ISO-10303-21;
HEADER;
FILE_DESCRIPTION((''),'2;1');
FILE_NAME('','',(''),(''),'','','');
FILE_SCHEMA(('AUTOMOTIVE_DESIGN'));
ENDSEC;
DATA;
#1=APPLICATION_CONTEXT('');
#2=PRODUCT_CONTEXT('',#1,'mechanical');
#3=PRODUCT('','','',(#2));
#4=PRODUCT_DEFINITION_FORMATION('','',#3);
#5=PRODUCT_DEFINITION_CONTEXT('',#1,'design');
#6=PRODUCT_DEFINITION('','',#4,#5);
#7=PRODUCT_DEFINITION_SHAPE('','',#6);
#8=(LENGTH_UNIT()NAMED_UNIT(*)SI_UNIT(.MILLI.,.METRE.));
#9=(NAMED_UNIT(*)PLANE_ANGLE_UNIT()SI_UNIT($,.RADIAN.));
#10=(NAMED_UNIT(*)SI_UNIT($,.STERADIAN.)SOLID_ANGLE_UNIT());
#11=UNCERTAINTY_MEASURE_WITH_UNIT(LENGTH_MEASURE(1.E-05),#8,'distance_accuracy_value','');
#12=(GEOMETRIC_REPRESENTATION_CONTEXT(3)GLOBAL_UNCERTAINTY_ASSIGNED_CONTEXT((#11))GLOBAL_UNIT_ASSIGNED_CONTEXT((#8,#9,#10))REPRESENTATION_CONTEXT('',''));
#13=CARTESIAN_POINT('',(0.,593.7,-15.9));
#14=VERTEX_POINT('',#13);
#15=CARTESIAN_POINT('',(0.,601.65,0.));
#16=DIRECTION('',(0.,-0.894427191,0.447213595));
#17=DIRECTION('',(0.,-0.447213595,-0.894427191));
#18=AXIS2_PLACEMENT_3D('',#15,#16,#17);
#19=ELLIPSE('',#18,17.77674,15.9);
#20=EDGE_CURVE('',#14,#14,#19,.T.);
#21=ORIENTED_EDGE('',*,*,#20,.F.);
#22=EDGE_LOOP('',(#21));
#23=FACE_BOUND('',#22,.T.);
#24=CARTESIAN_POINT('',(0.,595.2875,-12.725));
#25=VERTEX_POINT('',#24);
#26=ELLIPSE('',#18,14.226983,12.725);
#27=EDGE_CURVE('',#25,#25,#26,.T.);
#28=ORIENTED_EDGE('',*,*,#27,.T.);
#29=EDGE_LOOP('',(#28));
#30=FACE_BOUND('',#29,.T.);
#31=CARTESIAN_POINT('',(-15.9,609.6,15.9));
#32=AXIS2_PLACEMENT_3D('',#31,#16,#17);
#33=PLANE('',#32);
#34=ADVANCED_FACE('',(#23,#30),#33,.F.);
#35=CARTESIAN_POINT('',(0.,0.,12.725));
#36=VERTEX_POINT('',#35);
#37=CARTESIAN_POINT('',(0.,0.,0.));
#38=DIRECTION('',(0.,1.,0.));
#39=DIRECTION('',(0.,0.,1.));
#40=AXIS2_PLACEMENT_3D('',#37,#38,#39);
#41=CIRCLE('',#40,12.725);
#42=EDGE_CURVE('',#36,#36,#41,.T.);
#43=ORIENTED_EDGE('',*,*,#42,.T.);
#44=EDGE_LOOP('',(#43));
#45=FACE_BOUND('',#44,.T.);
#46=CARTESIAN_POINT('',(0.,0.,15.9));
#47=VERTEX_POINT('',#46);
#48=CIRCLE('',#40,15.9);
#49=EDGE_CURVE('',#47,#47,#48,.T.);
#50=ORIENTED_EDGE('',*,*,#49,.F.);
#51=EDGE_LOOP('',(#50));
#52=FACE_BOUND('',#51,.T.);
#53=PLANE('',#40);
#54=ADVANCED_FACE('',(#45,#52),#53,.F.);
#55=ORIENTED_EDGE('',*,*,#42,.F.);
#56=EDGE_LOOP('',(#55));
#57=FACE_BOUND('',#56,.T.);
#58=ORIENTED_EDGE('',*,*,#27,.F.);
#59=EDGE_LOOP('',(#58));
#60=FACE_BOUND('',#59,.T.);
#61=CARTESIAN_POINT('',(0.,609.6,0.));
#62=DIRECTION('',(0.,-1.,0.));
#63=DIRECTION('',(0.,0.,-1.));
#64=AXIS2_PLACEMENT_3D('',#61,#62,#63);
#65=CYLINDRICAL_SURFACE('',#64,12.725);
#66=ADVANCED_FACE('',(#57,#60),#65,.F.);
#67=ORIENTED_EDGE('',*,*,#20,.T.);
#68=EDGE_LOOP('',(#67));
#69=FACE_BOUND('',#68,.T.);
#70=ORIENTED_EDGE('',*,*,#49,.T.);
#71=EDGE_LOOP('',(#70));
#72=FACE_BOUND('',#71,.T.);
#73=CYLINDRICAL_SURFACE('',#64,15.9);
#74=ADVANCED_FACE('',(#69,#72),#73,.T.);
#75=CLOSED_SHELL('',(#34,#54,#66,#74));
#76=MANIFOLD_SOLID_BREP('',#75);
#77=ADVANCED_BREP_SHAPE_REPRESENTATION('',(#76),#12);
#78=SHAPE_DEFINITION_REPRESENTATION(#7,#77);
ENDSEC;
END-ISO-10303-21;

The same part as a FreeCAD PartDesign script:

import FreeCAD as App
import Part
import Sketcher


def add_polygon(sketch, points):
    """Adds a closed chain of lines whose ends are joined by coincident constraints."""
    first, n = sketch.GeometryCount, len(points)
    for a, b in zip(points, points[1:] + points[:1]):
        sketch.addGeometry(Part.LineSegment(App.Vector(*a, 0), App.Vector(*b, 0)), False)
    for i in range(n):
        sketch.addConstraint(Sketcher.Constraint("Coincident", first + i, 2, first + (i + 1) % n, 1))

doc = App.newDocument("Part")
body = doc.addObject("PartDesign::Body", "Body")

sketch1 = body.newObject("Sketcher::SketchObject", "Sketch")
sketch1.AttachmentSupport = (doc.getObject("XZ_Plane"), [""])
sketch1.MapMode = "FlatFace"
sketch1.addGeometry(Part.Circle(App.Vector(0, 0, 0), App.Vector(0, 0, 1), 15.9), False)
sketch1.addGeometry(Part.Circle(App.Vector(0, 0, 0), App.Vector(0, 0, 1), 12.725), False)
sketch1.addConstraint(Sketcher.Constraint("Coincident", 0, 3, -1, 1))
sketch1.addConstraint(Sketcher.Constraint("Coincident", 1, 3, -1, 1))
sketch1.addConstraint(Sketcher.Constraint("Diameter", 0, 31.8))
sketch1.addConstraint(Sketcher.Constraint("Diameter", 1, 25.45))
pad1 = body.newObject("PartDesign::Pad", "Pad")
pad1.Profile = sketch1
pad1.Length = 609.6
pad1.Reversed = True

sketch2 = body.newObject("Sketcher::SketchObject", "Sketch001")
sketch2.AttachmentSupport = (doc.getObject("YZ_Plane"), [""])
sketch2.MapMode = "FlatFace"
add_polygon(sketch2, [(609.6, -15.9), (609.6, 15.9), (593.7, -15.9)])
sketch2.addConstraint(Sketcher.Constraint("Vertical", 0))
sketch2.addConstraint(Sketcher.Constraint("Horizontal", 2))
sketch2.addConstraint(Sketcher.Constraint("DistanceX", 2, 1, 2, 2, 15.9))
sketch2.addConstraint(Sketcher.Constraint("DistanceY", 0, 1, 0, 2, 31.8))
sketch2.addConstraint(Sketcher.Constraint("DistanceX", -1, 1, 0, 2, 609.6))
sketch2.addConstraint(Sketcher.Constraint("DistanceY", -1, 1, 0, 2, 15.9))
pocket1 = body.newObject("PartDesign::Pocket", "Pocket")
pocket1.Profile = sketch2
pocket1.Type = "ThroughAll"
pocket1.Midplane = True

doc.recompute()
